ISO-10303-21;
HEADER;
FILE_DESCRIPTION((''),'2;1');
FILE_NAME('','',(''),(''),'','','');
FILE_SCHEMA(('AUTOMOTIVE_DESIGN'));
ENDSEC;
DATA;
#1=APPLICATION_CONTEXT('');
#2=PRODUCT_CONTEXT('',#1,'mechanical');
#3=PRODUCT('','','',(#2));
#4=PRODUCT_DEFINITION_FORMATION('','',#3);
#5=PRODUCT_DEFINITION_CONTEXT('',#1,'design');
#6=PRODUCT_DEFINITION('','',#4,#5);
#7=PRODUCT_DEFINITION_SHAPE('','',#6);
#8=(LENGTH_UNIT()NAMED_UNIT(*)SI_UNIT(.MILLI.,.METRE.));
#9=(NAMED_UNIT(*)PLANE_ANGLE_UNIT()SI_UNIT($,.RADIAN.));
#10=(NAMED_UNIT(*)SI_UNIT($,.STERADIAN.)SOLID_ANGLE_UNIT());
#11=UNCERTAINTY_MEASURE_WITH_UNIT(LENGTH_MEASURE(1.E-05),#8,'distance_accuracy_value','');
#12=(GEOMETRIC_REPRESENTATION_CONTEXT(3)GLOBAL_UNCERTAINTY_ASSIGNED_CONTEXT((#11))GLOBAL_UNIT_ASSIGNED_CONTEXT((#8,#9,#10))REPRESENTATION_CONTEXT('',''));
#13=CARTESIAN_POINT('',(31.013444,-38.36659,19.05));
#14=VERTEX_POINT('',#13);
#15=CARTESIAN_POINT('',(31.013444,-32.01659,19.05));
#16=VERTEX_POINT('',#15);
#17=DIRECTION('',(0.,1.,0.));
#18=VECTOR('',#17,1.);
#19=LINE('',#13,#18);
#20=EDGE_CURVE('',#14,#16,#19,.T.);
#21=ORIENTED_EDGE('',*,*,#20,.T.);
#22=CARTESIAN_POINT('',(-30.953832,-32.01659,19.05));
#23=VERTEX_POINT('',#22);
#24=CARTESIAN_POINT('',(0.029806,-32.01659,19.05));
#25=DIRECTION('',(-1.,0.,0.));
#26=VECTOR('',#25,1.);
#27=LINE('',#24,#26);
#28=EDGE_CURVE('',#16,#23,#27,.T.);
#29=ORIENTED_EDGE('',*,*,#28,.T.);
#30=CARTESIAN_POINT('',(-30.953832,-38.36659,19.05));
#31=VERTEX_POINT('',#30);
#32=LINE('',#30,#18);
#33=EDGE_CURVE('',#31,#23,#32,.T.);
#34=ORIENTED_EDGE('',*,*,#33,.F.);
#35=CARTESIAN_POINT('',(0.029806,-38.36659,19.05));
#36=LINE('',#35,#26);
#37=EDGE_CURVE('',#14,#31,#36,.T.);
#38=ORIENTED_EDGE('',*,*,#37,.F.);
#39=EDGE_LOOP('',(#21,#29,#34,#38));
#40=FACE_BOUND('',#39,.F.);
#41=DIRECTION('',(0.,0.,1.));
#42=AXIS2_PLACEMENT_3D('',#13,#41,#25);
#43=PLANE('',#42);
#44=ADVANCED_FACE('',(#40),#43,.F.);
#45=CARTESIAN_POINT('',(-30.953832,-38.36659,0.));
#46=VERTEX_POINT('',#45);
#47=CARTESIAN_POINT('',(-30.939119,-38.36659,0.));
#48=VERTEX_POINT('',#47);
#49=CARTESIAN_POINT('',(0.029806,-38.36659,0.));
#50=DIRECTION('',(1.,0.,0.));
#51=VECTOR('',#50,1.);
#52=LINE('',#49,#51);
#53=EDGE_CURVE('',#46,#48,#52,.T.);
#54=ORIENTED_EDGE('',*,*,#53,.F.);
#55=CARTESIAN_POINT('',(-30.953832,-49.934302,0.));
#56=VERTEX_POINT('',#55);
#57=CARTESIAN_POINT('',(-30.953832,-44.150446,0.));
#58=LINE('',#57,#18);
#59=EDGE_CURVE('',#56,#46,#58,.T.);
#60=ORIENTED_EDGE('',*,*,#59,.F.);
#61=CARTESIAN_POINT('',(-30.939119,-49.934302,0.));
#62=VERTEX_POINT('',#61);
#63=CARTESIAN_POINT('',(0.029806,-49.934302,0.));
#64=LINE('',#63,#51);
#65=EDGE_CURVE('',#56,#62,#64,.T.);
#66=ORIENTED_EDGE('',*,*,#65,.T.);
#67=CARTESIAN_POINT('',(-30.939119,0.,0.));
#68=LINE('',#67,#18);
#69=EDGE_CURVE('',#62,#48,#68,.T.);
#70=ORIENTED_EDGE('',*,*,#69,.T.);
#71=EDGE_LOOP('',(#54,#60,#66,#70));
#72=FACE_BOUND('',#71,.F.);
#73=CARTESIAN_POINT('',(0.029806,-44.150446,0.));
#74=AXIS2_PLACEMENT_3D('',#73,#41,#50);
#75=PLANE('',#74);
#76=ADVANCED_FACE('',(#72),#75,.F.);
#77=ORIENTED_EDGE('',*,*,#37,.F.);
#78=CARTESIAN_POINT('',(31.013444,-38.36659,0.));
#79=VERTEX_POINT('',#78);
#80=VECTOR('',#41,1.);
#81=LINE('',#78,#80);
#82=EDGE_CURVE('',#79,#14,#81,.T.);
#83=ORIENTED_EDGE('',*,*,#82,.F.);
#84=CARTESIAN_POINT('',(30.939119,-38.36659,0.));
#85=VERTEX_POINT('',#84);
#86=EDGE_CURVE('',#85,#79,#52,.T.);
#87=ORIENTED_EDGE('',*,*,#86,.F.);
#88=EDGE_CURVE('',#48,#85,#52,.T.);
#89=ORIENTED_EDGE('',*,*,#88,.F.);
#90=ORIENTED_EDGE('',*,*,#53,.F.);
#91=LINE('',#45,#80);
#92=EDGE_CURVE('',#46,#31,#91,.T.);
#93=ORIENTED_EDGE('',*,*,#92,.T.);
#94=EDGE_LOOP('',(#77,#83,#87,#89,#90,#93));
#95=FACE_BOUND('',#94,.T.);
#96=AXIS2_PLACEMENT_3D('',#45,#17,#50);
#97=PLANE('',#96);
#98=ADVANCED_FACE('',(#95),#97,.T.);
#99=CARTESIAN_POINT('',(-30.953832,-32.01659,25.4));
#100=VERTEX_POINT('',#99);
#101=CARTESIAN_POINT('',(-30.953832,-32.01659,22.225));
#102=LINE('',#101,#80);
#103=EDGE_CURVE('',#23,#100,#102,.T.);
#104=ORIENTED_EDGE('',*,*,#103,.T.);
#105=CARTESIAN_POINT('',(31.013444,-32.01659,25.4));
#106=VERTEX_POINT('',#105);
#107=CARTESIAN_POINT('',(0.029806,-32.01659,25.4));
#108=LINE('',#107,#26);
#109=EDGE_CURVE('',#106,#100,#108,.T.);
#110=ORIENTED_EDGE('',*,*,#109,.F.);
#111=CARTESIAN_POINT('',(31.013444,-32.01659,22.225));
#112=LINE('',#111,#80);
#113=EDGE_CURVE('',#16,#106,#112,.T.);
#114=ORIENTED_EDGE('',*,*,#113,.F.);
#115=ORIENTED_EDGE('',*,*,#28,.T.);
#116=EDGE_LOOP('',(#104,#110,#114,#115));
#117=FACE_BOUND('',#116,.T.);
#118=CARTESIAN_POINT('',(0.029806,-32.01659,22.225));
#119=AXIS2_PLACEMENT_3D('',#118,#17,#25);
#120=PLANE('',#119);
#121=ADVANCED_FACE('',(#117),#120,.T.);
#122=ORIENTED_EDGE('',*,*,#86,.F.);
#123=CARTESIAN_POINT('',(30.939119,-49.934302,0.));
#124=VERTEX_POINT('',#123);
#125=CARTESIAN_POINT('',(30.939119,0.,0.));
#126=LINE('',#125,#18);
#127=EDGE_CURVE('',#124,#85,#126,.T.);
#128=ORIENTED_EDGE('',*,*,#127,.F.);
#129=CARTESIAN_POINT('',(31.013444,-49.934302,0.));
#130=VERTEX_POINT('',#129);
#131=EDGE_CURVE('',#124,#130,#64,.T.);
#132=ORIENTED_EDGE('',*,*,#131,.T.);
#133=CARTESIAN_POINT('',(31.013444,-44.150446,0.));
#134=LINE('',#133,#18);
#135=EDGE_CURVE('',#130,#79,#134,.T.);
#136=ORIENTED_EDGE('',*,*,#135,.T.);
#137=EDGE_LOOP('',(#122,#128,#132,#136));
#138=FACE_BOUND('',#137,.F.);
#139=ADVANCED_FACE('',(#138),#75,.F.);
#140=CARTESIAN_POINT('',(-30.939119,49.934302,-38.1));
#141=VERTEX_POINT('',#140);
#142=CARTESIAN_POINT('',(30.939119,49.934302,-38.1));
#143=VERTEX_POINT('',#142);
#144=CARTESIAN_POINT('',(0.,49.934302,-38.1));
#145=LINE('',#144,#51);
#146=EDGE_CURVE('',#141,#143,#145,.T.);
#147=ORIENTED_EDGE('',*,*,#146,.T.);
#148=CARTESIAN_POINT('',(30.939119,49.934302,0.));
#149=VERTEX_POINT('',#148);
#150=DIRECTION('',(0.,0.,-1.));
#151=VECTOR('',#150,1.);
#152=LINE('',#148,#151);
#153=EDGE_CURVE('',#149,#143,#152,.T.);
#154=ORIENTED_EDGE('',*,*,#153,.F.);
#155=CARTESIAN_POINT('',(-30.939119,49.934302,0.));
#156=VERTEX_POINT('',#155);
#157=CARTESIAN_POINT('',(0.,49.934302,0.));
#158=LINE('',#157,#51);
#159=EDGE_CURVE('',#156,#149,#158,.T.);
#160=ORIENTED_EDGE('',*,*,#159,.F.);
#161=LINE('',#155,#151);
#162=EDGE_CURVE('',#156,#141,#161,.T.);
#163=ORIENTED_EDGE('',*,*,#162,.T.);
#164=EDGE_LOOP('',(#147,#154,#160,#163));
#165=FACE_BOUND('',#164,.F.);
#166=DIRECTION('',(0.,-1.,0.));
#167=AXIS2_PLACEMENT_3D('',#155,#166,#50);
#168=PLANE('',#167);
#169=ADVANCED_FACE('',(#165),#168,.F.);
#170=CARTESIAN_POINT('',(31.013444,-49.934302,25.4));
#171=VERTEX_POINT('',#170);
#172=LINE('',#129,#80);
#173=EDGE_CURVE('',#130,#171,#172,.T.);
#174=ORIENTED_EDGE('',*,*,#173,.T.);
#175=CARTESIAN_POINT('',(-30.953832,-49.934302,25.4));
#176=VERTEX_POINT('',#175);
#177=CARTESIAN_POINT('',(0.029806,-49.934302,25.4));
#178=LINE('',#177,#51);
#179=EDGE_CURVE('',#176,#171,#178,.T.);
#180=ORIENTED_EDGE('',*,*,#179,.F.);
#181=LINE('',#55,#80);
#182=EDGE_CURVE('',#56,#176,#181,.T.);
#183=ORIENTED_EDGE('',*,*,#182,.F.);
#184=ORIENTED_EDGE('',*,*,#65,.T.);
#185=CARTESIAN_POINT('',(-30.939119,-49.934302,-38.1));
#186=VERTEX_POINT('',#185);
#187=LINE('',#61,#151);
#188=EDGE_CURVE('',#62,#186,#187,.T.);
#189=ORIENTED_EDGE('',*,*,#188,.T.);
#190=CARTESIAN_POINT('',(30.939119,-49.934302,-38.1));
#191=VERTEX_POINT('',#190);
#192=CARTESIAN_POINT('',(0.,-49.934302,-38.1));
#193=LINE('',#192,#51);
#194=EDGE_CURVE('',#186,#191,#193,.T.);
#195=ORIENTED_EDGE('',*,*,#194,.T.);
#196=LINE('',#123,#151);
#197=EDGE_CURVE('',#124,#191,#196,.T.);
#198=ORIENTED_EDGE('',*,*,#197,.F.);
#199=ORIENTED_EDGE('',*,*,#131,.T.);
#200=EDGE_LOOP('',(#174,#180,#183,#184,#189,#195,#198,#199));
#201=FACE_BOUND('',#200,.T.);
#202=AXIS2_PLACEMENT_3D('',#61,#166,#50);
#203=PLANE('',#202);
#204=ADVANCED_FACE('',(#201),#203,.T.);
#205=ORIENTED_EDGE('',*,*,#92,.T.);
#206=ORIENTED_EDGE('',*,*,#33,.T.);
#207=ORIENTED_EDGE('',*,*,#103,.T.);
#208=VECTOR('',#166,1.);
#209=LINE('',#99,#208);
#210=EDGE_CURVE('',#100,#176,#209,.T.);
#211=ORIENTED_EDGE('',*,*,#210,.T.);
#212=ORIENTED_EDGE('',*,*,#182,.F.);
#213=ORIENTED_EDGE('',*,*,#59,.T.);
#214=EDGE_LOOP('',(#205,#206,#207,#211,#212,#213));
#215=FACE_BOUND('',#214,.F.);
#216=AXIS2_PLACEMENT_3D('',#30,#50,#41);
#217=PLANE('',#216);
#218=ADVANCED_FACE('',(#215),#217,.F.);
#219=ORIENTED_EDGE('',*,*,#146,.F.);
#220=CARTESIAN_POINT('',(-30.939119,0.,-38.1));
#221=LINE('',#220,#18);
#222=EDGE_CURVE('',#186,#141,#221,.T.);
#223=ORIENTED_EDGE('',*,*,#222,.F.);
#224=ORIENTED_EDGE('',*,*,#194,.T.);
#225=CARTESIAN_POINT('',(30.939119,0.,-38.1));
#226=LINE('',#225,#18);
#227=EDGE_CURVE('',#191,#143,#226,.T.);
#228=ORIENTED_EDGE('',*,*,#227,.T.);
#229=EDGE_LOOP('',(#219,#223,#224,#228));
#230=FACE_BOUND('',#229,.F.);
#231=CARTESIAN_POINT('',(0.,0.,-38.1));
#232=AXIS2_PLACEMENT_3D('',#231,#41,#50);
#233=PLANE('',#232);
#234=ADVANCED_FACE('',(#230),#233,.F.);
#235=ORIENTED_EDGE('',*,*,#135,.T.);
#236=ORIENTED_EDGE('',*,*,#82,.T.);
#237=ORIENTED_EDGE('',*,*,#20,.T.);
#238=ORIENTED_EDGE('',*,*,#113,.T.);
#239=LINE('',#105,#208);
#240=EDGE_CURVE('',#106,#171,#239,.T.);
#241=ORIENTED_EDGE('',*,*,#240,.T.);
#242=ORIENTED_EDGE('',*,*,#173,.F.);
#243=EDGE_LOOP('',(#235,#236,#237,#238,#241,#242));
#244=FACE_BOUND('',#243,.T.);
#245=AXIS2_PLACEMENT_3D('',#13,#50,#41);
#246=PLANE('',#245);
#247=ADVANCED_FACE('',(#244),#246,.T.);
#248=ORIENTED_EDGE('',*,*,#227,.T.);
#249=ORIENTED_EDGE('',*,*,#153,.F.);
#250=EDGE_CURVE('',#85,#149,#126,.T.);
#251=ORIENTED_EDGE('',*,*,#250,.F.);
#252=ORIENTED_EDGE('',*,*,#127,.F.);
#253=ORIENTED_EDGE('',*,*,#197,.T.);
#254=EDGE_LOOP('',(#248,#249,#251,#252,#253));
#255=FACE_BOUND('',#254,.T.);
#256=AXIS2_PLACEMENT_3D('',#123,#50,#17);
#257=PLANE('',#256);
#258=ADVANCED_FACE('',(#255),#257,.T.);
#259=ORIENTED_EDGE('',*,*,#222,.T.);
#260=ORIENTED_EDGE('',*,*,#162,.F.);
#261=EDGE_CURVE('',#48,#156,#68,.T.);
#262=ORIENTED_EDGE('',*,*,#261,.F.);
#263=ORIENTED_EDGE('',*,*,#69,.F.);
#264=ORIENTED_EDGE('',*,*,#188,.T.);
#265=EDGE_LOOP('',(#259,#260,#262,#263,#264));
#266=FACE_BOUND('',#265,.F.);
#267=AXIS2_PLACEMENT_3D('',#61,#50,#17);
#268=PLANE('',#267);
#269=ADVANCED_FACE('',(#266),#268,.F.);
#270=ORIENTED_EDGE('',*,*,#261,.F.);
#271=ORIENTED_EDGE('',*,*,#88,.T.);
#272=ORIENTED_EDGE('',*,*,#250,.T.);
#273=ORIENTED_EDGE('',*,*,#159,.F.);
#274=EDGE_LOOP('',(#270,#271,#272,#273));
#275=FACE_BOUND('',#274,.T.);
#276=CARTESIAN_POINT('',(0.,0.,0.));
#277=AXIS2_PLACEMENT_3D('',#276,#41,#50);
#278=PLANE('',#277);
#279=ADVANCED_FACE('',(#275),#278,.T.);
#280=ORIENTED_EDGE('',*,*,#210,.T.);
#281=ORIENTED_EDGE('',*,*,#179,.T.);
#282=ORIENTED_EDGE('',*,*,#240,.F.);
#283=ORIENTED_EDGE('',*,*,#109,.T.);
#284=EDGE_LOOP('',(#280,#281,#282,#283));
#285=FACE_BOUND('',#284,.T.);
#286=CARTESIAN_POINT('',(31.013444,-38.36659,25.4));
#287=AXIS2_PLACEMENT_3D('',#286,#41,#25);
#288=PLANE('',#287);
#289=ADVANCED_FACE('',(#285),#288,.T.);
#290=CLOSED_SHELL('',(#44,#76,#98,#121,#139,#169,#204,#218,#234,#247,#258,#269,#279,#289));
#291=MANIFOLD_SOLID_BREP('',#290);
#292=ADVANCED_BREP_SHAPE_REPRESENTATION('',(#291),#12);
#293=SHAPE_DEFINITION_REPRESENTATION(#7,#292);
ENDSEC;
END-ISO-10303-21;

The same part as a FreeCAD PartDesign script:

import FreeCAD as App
import Part
import Sketcher
Q = App.Units.Quantity


def add_polygon(sketch, points):
    """Adds a closed chain of lines whose ends are joined by coincident constraints."""
    first, n = sketch.GeometryCount, len(points)
    for a, b in zip(points, points[1:] + points[:1]):
        sketch.addGeometry(Part.LineSegment(App.Vector(*a, 0), App.Vector(*b, 0)), False)
    for i in range(n):
        sketch.addConstraint(Sketcher.Constraint("Coincident", first + i, 2, first + (i + 1) % n, 1))

doc = App.newDocument("Part")
body = doc.addObject("PartDesign::Body", "Body")

# Sketch on XY plane
sketch1 = body.newObject("Sketcher::SketchObject", "Sketch")
sketch1.AttachmentSupport = (doc.getObject("XY_Plane"), [""])
sketch1.MapMode = "FlatFace"
add_polygon(sketch1, [(-31, -38), (-31, -50), (31, -50), (31, -38)])  # lines 0-3
sketch1.addConstraint([
    Sketcher.Constraint("Vertical", 0),
    Sketcher.Constraint("Horizontal", 1),
    Sketcher.Constraint("Vertical", 2),
    Sketcher.Constraint("Horizontal", 3),
    Sketcher.Constraint("DistanceX", 1, 1, 1, 2, Q("61.967276 mm")),
    Sketcher.Constraint("DistanceY", 0, 2, 0, 1, Q("11.567712 mm")),
    Sketcher.Constraint("DistanceX", 0, 2, -1, 1, Q("30.953832 mm")),
    Sketcher.Constraint("DistanceY", 2, 2, -1, 1, Q("38.36659 mm")),
])
pad1 = body.newObject("PartDesign::Pad", "Pad")
pad1.Profile = sketch1
pad1.Length = Q("1 in")

# Sketch on XY plane
sketch2 = body.newObject("Sketcher::SketchObject", "Sketch001")
sketch2.AttachmentSupport = (doc.getObject("XY_Plane"), [""])
sketch2.MapMode = "FlatFace"
add_polygon(sketch2, [(-31, 50), (-31, -50), (31, -50), (31, 50)])  # lines 0-3
sketch2.addConstraint([
    Sketcher.Constraint("Vertical", 0),
    Sketcher.Constraint("Horizontal", 1),
    Sketcher.Constraint("Vertical", 2),
    Sketcher.Constraint("Horizontal", 3),
    Sketcher.Constraint("Symmetric", 0, 2, 2, 2, -1, 1),
    Sketcher.Constraint("DistanceX", 1, 1, 1, 2, Q("61.878238 mm")),
    Sketcher.Constraint("DistanceY", 0, 2, 0, 1, Q("99.868604 mm")),
])
pad2 = body.newObject("PartDesign::Pad", "Pad001")
pad2.Profile = sketch2
pad2.Length = Q("1.5 in")
pad2.Reversed = True

# Sketch on XZ plane
sketch3 = body.newObject("Sketcher::SketchObject", "Sketch002")
sketch3.AttachmentSupport = (doc.getObject("XZ_Plane"), [""])
sketch3.MapMode = "FlatFace"
sketch3.AttachmentOffset = App.Placement(App.Vector(0, 0, 38.36659), App.Rotation())
add_polygon(sketch3, [(31, 25), (31, 19), (-31, 19), (-31, 25)])  # lines 0-3
sketch3.addConstraint([
    Sketcher.Constraint("Vertical", 0),
    Sketcher.Constraint("Horizontal", 1),
    Sketcher.Constraint("Vertical", 2),
    Sketcher.Constraint("Horizontal", 3),
    Sketcher.Constraint("DistanceY", -1, 1, 2, 2, Q("1 in")),
    Sketcher.Constraint("DistanceY", 0, 2, 0, 1, Q("0.25 in")),
    Sketcher.Constraint("DistanceX", 1, 2, 1, 1, Q("61.967276 mm")),
    Sketcher.Constraint("DistanceX", 1, 2, -1, 1, Q("30.953832 mm")),
])
pad3 = body.newObject("PartDesign::Pad", "Pad002")
pad3.Profile = sketch3
pad3.Length = Q("0.25 in")
pad3.Reversed = True

doc.recompute()
